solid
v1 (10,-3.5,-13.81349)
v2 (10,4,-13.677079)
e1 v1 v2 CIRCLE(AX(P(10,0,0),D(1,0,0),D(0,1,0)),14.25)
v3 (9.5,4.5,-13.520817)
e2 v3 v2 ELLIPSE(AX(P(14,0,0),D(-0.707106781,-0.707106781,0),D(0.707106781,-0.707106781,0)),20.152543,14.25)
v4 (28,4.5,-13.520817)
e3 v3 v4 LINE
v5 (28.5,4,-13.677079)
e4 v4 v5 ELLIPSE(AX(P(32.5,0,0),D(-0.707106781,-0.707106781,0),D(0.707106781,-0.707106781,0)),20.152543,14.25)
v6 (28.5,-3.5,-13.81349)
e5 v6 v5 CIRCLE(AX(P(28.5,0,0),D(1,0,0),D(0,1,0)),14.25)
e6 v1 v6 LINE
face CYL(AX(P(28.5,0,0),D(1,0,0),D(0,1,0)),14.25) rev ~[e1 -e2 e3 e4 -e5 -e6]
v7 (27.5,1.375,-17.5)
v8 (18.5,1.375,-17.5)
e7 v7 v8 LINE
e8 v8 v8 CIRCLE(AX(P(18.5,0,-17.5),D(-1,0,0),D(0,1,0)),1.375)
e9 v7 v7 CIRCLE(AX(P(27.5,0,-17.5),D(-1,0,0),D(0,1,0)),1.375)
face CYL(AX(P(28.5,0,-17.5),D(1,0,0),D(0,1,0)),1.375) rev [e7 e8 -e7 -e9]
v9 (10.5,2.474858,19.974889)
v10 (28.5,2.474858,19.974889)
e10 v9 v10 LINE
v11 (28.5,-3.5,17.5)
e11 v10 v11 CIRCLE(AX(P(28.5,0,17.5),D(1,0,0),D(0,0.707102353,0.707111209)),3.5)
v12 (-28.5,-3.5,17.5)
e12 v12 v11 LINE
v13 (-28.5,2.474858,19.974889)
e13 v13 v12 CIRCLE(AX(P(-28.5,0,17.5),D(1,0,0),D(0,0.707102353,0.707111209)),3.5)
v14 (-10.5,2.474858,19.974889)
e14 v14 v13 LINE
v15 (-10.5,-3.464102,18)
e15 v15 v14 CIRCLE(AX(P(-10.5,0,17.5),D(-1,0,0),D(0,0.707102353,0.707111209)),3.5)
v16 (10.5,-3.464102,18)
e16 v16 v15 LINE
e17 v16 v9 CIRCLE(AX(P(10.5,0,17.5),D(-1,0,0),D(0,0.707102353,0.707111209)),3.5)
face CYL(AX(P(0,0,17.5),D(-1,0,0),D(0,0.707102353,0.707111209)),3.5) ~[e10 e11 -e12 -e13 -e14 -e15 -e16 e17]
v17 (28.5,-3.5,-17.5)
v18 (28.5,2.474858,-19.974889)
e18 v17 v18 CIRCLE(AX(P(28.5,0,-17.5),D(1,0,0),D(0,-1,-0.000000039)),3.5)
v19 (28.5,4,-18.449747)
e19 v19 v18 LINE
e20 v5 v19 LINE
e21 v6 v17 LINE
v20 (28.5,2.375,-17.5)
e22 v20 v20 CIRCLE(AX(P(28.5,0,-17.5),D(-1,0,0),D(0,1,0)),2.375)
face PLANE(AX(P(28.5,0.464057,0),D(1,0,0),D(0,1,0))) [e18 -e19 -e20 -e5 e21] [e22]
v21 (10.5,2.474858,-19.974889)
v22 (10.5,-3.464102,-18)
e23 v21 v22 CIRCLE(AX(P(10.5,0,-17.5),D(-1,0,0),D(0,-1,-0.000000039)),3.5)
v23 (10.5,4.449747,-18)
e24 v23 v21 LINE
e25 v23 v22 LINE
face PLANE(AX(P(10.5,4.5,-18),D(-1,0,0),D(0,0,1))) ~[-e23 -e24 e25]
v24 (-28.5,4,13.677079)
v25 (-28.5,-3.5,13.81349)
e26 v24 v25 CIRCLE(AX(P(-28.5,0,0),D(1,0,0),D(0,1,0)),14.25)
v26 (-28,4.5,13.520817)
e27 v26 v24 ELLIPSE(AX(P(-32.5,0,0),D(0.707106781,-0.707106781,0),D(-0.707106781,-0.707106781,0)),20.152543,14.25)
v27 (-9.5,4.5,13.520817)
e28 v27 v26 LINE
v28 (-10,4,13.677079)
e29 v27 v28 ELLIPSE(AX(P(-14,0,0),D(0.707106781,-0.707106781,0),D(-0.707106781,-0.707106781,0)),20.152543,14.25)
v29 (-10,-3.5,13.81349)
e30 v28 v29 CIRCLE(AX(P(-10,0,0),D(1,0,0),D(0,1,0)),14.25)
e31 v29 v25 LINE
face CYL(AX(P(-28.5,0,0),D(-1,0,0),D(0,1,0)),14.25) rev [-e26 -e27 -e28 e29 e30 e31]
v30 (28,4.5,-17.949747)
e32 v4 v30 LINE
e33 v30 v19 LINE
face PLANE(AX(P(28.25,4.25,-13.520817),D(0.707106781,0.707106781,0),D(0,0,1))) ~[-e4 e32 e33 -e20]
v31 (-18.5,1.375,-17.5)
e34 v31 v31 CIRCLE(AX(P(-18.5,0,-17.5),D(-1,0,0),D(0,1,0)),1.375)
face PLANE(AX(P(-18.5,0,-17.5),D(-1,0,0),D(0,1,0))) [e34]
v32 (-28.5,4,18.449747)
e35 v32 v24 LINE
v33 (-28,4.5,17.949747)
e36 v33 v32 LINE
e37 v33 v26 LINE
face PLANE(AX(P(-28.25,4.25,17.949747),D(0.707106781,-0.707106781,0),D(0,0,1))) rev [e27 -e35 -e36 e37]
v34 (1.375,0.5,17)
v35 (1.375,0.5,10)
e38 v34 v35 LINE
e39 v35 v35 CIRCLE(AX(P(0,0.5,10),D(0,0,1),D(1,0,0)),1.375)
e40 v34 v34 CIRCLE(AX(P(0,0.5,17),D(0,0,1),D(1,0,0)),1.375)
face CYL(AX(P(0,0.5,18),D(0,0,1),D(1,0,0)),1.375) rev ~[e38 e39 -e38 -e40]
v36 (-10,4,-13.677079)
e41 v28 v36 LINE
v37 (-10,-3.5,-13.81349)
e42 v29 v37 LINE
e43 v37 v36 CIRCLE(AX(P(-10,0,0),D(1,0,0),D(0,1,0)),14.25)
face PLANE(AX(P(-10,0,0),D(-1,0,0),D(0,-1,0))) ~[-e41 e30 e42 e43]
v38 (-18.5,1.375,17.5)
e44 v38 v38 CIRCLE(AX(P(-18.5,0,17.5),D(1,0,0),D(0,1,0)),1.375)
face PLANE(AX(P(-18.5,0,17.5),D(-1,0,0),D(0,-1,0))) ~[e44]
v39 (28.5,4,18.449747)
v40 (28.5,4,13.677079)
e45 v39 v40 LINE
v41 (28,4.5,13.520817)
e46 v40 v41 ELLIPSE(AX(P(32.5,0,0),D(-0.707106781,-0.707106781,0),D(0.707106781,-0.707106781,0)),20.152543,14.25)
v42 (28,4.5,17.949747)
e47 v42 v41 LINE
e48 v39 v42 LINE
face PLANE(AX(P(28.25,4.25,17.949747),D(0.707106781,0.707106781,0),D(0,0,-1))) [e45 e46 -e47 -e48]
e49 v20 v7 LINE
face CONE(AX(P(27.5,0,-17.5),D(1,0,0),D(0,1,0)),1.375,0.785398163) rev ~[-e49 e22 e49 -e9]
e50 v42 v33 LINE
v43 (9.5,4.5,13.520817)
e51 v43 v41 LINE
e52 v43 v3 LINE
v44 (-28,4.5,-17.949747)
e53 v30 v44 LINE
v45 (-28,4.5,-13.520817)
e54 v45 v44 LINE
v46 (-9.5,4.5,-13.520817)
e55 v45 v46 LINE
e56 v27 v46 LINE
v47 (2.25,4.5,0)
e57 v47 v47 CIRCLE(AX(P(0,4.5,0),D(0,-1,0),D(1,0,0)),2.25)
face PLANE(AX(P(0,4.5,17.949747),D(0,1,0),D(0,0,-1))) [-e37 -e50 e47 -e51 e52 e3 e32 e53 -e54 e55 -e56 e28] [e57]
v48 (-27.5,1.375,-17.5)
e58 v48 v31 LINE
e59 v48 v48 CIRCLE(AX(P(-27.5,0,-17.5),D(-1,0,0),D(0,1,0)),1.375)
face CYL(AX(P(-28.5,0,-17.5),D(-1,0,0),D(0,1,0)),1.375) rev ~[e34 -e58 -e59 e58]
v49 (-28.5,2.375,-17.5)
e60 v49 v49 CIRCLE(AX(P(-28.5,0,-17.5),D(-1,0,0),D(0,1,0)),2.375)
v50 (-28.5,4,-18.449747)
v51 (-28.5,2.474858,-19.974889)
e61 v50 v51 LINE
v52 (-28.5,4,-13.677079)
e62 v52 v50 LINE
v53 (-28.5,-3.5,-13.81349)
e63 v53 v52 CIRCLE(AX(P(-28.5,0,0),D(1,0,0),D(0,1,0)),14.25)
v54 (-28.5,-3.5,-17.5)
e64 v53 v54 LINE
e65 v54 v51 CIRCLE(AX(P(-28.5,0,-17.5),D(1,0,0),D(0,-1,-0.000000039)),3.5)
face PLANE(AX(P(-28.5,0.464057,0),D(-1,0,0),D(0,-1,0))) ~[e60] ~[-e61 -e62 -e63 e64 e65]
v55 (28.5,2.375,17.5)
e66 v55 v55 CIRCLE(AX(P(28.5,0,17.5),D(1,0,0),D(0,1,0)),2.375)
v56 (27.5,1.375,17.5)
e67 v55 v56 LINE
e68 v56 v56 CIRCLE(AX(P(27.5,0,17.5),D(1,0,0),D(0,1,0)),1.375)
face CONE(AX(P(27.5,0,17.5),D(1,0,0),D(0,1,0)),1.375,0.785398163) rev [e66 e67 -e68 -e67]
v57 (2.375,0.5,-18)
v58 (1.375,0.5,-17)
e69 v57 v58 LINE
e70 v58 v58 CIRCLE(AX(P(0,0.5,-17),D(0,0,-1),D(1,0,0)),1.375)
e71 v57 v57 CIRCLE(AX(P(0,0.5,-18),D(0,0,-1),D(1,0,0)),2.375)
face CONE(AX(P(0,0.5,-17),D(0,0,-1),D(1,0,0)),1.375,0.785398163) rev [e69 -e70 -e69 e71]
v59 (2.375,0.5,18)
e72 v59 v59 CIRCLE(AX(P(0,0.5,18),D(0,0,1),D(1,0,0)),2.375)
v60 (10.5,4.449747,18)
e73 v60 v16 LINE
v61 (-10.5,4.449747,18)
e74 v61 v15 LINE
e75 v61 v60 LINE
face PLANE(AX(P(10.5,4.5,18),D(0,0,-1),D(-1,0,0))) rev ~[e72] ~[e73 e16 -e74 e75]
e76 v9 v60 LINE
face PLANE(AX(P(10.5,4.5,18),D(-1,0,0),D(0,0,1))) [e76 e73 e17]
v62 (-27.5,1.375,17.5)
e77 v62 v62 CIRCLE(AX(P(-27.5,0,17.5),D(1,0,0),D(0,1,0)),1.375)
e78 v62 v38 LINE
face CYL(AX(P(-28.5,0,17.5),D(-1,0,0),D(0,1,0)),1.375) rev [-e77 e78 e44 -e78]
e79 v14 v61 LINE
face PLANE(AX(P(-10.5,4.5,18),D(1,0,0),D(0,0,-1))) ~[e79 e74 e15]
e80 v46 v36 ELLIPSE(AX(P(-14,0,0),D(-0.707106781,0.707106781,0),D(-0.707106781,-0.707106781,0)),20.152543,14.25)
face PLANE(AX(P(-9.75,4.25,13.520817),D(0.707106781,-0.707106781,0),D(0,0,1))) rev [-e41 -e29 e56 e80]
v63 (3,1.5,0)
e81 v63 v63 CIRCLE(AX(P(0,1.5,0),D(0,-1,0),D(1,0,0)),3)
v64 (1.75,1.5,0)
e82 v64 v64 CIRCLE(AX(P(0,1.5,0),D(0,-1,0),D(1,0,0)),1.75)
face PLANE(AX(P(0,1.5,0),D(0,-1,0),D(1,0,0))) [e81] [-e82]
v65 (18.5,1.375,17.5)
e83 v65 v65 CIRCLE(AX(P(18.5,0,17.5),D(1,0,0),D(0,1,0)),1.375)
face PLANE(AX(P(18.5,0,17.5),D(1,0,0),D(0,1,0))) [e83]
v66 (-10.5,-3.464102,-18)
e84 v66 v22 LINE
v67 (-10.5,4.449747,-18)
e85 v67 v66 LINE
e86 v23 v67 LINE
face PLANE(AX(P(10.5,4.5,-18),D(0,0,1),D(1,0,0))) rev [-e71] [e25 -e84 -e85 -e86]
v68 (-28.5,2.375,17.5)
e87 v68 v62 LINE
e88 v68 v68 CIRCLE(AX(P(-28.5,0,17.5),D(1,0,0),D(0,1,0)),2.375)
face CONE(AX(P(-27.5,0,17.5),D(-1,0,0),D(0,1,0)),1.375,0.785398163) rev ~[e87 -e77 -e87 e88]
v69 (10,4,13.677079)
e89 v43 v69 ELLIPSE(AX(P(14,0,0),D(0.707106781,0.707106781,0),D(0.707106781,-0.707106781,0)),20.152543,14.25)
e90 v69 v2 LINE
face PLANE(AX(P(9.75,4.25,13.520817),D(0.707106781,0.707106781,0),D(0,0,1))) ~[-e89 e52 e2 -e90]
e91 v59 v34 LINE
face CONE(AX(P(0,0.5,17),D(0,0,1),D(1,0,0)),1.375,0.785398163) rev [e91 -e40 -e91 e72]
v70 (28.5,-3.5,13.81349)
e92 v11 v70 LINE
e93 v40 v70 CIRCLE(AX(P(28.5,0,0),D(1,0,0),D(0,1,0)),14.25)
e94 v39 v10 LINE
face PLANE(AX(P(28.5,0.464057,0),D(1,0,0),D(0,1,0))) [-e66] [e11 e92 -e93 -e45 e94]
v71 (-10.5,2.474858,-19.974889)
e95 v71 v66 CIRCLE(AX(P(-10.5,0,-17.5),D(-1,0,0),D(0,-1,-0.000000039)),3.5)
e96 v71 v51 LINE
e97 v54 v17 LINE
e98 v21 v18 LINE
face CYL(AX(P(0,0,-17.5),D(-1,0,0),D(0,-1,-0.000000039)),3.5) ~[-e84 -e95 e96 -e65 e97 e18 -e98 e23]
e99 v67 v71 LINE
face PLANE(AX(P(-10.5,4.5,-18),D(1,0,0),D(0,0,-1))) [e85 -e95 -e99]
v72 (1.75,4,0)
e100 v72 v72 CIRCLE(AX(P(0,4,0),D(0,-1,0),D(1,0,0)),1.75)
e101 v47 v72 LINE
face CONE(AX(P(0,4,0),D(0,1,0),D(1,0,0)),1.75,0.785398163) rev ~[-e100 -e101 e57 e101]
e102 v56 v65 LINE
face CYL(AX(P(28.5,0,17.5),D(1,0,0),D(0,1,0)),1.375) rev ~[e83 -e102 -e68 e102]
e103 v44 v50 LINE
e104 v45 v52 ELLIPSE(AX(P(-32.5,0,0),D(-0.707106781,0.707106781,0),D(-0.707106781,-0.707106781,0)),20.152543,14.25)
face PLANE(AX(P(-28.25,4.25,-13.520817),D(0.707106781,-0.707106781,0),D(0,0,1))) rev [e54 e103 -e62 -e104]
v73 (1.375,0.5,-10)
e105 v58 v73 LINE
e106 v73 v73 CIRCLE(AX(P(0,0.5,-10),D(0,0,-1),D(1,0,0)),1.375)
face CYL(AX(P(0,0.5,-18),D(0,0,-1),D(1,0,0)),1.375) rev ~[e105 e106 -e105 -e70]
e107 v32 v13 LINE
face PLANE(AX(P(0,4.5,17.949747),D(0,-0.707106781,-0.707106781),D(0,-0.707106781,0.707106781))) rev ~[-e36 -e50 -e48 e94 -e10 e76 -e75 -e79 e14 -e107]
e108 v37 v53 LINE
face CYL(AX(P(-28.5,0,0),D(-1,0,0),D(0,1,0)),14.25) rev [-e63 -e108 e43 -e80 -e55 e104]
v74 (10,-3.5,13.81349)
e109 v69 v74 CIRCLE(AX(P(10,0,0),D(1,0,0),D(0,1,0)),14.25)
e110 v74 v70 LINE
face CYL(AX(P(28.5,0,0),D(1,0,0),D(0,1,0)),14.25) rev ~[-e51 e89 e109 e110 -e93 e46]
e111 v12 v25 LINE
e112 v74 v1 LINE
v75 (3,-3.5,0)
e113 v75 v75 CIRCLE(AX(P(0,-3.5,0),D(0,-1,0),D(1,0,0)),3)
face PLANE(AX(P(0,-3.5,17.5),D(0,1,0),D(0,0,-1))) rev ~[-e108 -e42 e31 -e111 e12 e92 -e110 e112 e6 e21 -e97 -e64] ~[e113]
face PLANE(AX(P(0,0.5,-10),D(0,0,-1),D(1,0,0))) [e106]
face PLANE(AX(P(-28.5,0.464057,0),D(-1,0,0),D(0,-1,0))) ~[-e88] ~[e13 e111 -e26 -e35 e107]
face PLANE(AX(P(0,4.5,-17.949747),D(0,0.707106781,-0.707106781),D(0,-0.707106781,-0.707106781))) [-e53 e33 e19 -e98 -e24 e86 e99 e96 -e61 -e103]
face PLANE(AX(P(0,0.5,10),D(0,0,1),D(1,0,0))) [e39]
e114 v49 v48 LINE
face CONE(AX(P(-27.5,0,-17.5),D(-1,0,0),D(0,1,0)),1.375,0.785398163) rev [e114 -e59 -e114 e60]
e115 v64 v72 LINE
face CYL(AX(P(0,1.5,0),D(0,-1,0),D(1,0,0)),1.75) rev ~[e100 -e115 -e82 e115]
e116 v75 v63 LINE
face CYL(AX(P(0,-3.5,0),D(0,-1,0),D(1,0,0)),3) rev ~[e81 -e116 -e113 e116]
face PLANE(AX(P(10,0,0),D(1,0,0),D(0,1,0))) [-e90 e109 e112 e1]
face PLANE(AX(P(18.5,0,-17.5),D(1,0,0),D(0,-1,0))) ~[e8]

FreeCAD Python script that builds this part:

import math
import FreeCAD as App
import Part
import Sketcher
from FreeCAD import Vector
Q = App.Units.Quantity


def edges_at(feature, points):
    """Names of the edges that pass closest to the given points."""
    edges = feature.Shape.Edges
    near = lambda p: min(range(len(edges)), key=lambda i: edges[i].distToShape(Part.Vertex(*p))[0])
    return sorted({f"Edge{near(p) + 1}" for p in points})


def add_polygon(sketch, points):
    """Adds a closed chain of lines whose ends are joined by coincident constraints."""
    first, n = sketch.GeometryCount, len(points)
    for a, b in zip(points, points[1:] + points[:1]):
        sketch.addGeometry(Part.LineSegment(App.Vector(*a, 0), App.Vector(*b, 0)), False)
    for i in range(n):
        sketch.addConstraint(Sketcher.Constraint("Coincident", first + i, 2, first + (i + 1) % n, 1))

doc = App.newDocument("Part")
params = doc.addObject("Spreadsheet::Sheet", "Params")
for row, (alias, value) in enumerate([
    ("sketch1_radius", "3.5 mm"),
    ("sketch1_height", "35 mm"),
    ("pad1_length", "28.5 mm"),
    ("sketch2_diameter", "28.5 mm"),
    ("pocket1_length", "18.5 mm"),
    ("sketch3_diameter", "2.75 mm"),
    ("pocket2_length", "10 mm"),
    ("chamfer_size", "1 mm"),
    ("sketch4_height", "4 mm"),
    ("sketch4_width", "10.5 mm"),
    ("pocket3_length", "10 mm"),
    ("sketch5_diameter", "6 mm"),
    ("pocket4_length", "5 mm"),
    ("sketch6_diameter", "3.5 mm"),
    ("pocket5_length", "5 mm"),
    ("chamfer2_size", "0.5 mm"),
    ("sketch7_diameter", "2.75 mm"),
    ("pocket6_length", "8 mm"),
    ("sketch8_diameter", "2.75 mm"),
    ("pocket7_length", "8 mm"),
    ("chamfer3_size", "1 mm"),
], start=1):
    params.set(f"A{row}", alias)
    params.set(f"B{row}", "=" + value)
    params.setAlias(f"B{row}", alias)

body = doc.addObject("PartDesign::Body", "Body")

# Sketch on YZ plane
sketch1 = body.newObject("Sketcher::SketchObject", "Sketch")
sketch1.AttachmentSupport = (doc.getObject("YZ_Plane"), [""])
sketch1.MapMode = "FlatFace"
sketch1.addGeometry(Part.ArcOfCircle(Part.Circle(Vector(0, 17.5, 0), Vector(0, 0, 1), 3.5), math.radians(45), math.radians(180)), False)
sketch1.addGeometry(Part.LineSegment(Vector(-3.5, 17.5, 0), Vector(-3.5, -17.5, 0)), False)
sketch1.addGeometry(Part.ArcOfCircle(Part.Circle(Vector(0, -17.5, 0), Vector(0, 0, 1), 3.5), math.radians(-180), math.radians(-45)), False)
sketch1.addGeometry(Part.LineSegment(Vector(2.5, -20, 0), Vector(4.5, -17.9, 0)), False)
sketch1.addGeometry(Part.LineSegment(Vector(4.5, -17.9, 0), Vector(4.5, 17.9, 0)), False)
sketch1.addGeometry(Part.LineSegment(Vector(4.5, 17.9, 0), Vector(2.5, 20, 0)), False)
sketch1.addConstraint(Sketcher.Constraint("Tangent", 0, 2, 1, 1))
sketch1.addConstraint(Sketcher.Constraint("Tangent", 1, 2, 2, 1))
sketch1.addConstraint(Sketcher.Constraint("Coincident", 2, 2, 3, 1))
sketch1.addConstraint(Sketcher.Constraint("Coincident", 3, 2, 4, 1))
sketch1.addConstraint(Sketcher.Constraint("Coincident", 4, 2, 5, 1))
sketch1.addConstraint(Sketcher.Constraint("Coincident", 5, 2, 0, 1))
sketch1.addConstraint(Sketcher.Constraint("Vertical", 1))
sketch1.addConstraint(Sketcher.Constraint("Vertical", 4))
sketch1.addConstraint(Sketcher.Constraint("Equal", 0, 2))
sketch1.addConstraint(Sketcher.Constraint("Symmetric", 0, 3, 2, 3, -1, 1))
sketch1.addConstraint(Sketcher.Constraint("Perpendicular", 3, 5))
sketch1.addConstraint(Sketcher.Constraint("Vertical", 2, 2, 5, 2))
sketch1.addConstraint(Sketcher.Constraint("Equal", 3, 5))
sketch1.addConstraint(Sketcher.Constraint("Radius", 0, Q("3.5 mm")))
sketch1.addConstraint(Sketcher.Constraint("DistanceY", 1, 2, 1, 1, Q("35 mm")))
sketch1.addConstraint(Sketcher.Constraint("DistanceX", 1, 2, 3, 2, Q("8 mm")))
sketch1.addConstraint(Sketcher.Constraint("DistanceX", -1, 1, 2, 2, Q("2.474858 mm")))
sketch1.setExpression("Constraints[13]", "Params.sketch1_radius")
sketch1.setExpression("Constraints[14]", "Params.sketch1_height")
pad1 = body.newObject("PartDesign::Pad", "Pad")
pad1.Profile = sketch1
pad1.setExpression("Length", "Params.pad1_length")

# Sketch on YZ plane
sketch2 = body.newObject("Sketcher::SketchObject", "Sketch001")
sketch2.AttachmentSupport = (doc.getObject("YZ_Plane"), [""])
sketch2.MapMode = "FlatFace"
sketch2.AttachmentOffset = App.Placement(Vector(0, 0, 28.5), App.Rotation())
sketch2.addGeometry(Part.Circle(Vector(0, 0, 0), Vector(0, 0, 1), 14), False)
sketch2.addConstraint(Sketcher.Constraint("Coincident", 0, 3, -1, 1))
sketch2.addConstraint(Sketcher.Constraint("Diameter", 0, Q("28.5 mm")))
sketch2.setExpression("Constraints[1]", "Params.sketch2_diameter")
pocket1 = body.newObject("PartDesign::Pocket", "Pocket")
pocket1.Profile = sketch2
pocket1.setExpression("Length", "Params.pocket1_length")

# Sketch on YZ plane
sketch3 = body.newObject("Sketcher::SketchObject", "Sketch002")
sketch3.AttachmentSupport = (doc.getObject("YZ_Plane"), [""])
sketch3.MapMode = "FlatFace"
sketch3.AttachmentOffset = App.Placement(Vector(0, 0, 28.5), App.Rotation())
sketch3.addGeometry(Part.Circle(Vector(0, 17.5, 0), Vector(0, 0, 1), 1.4), False)
sketch3.addConstraint(Sketcher.Constraint("PointOnObject", 0, 3, -2))
sketch3.addConstraint(Sketcher.Constraint("Diameter", 0, Q("2.75 mm")))
sketch3.addConstraint(Sketcher.Constraint("DistanceY", -1, 1, 0, 3, Q("17.5 mm")))
sketch3.setExpression("Constraints[1]", "Params.sketch3_diameter")
pocket2 = body.newObject("PartDesign::Pocket", "Pocket001")
pocket2.Profile = sketch3
pocket2.setExpression("Length", "Params.pocket2_length")
doc.recompute()

mirrored = body.newObject("PartDesign::Mirrored", "Mirrored")
mirrored.Originals = [pocket2]
mirrored.MirrorPlane = (doc.getObject("XY_Plane"), [""])
body.Tip = mirrored
doc.recompute()

chamfer = body.newObject("PartDesign::Chamfer", "Chamfer")
chamfer.Base = (mirrored, edges_at(mirrored, [(28.5, -1.375, 17.5), (28.5, -1.375, -17.5)]))
chamfer.setExpression("Size", "Params.chamfer_size")

# Sketch on XZ plane
sketch4 = body.newObject("Sketcher::SketchObject", "Sketch003")
sketch4.AttachmentSupport = (doc.getObject("XZ_Plane"), [""])
sketch4.MapMode = "FlatFace"
sketch4.AttachmentOffset = App.Placement(Vector(0, 0, -4.5), App.Rotation())
add_polygon(sketch4, [(10.5, 22), (10.5, 18), (0, 18), (0, 22)])  # lines 0-3
sketch4.addConstraint(Sketcher.Constraint("Vertical", 0))
sketch4.addConstraint(Sketcher.Constraint("Horizontal", 1))
sketch4.addConstraint(Sketcher.Constraint("Vertical", 2))
sketch4.addConstraint(Sketcher.Constraint("Horizontal", 3))
sketch4.addConstraint(Sketcher.Constraint("PointOnObject", 1, 2, -2))
sketch4.addConstraint(Sketcher.Constraint("DistanceY", 0, 2, 0, 1, Q("4 mm")))
sketch4.addConstraint(Sketcher.Constraint("DistanceX", 1, 2, 1, 1, Q("10.5 mm")))
sketch4.addConstraint(Sketcher.Constraint("DistanceY", -1, 1, 0, 2, Q("18 mm")))
sketch4.setExpression("Constraints[9]", "Params.sketch4_height")
sketch4.setExpression("Constraints[10]", "Params.sketch4_width")
pocket3 = body.newObject("PartDesign::Pocket", "Pocket002")
pocket3.Profile = sketch4
pocket3.setExpression("Length", "Params.pocket3_length")
pocket3.Reversed = True
doc.recompute()

mirrored2 = body.newObject("PartDesign::Mirrored", "Mirrored001")
mirrored2.Originals = [pocket3]
mirrored2.MirrorPlane = (doc.getObject("XY_Plane"), [""])
body.Tip = mirrored2
body2 = doc.addObject("PartDesign::Body", "Body001")
doc.recompute()

mirroring = doc.addObject("Part::Mirroring", "Mirroring")
mirroring.Source = body
mirroring.Base = Vector(0, 0, 0)
mirroring.Normal = Vector(1, 0, 0)
body2.BaseFeature = mirroring
doc.recompute()

boolean = body2.newObject("PartDesign::Boolean", "Boolean")
boolean.Type = "Fuse"
boolean.addObjects([body])

# Sketch on XZ plane
sketch5 = body2.newObject("Sketcher::SketchObject", "Sketch004")
sketch5.AttachmentSupport = (doc.getObject("XZ_Plane001"), [""])
sketch5.MapMode = "FlatFace"
sketch5.AttachmentOffset = App.Placement(Vector(0, 0, 3.5), App.Rotation())
sketch5.addGeometry(Part.Circle(Vector(0, 0, 0), Vector(0, 0, 1), 3), False)
sketch5.addConstraint(Sketcher.Constraint("Coincident", 0, 3, -1, 1))
sketch5.addConstraint(Sketcher.Constraint("Diameter", 0, Q("6 mm")))
sketch5.setExpression("Constraints[1]", "Params.sketch5_diameter")
pocket4 = body2.newObject("PartDesign::Pocket", "Pocket003")
pocket4.Profile = sketch5
pocket4.setExpression("Length", "Params.pocket4_length")

# Sketch on XZ plane
sketch6 = body2.newObject("Sketcher::SketchObject", "Sketch005")
sketch6.AttachmentSupport = (doc.getObject("XZ_Plane001"), [""])
sketch6.MapMode = "FlatFace"
sketch6.AttachmentOffset = App.Placement(Vector(0, 0, -1.5), App.Rotation())
sketch6.addGeometry(Part.Circle(Vector(0, 0, 0), Vector(0, 0, 1), 1.8), False)
sketch6.addConstraint(Sketcher.Constraint("Coincident", 0, 3, -1, 1))
sketch6.addConstraint(Sketcher.Constraint("Diameter", 0, Q("3.5 mm")))
sketch6.setExpression("Constraints[1]", "Params.sketch6_diameter")
pocket5 = body2.newObject("PartDesign::Pocket", "Pocket004")
pocket5.Profile = sketch6
pocket5.setExpression("Length", "Params.pocket5_length")
doc.recompute()

chamfer2 = body2.newObject("PartDesign::Chamfer", "Chamfer001")
chamfer2.Base = (pocket5, edges_at(pocket5, [
    (10, 4.5, 0),
    (-1.75, 4.5, 0),
    (-10, 4.5, 0),
    (-28.5, 4.5, -15.735),
    (-28.5, 4.5, 15.735),
    (28.5, 4.5, -15.735),
    (28.5, 4.5, 15.735),
]))
chamfer2.setExpression("Size", "Params.chamfer2_size")

# Sketch on XY plane
sketch7 = body2.newObject("Sketcher::SketchObject", "Sketch006")
sketch7.AttachmentSupport = (doc.getObject("XY_Plane001"), [""])
sketch7.MapMode = "FlatFace"
sketch7.AttachmentOffset = App.Placement(Vector(0, 0, 18), App.Rotation())
sketch7.addGeometry(Part.Circle(Vector(0, 0.5, 0), Vector(0, 0, 1), 1.4), False)
sketch7.addConstraint(Sketcher.Constraint("PointOnObject", 0, 3, -2))
sketch7.addConstraint(Sketcher.Constraint("Diameter", 0, Q("2.75 mm")))
sketch7.addConstraint(Sketcher.Constraint("DistanceY", -1, 1, 0, 3, Q("0.5 mm")))
sketch7.setExpression("Constraints[1]", "Params.sketch7_diameter")
pocket6 = body2.newObject("PartDesign::Pocket", "Pocket005")
pocket6.Profile = sketch7
pocket6.setExpression("Length", "Params.pocket6_length")

# Sketch on XY plane
sketch8 = body2.newObject("Sketcher::SketchObject", "Sketch007")
sketch8.AttachmentSupport = (doc.getObject("XY_Plane001"), [""])
sketch8.MapMode = "FlatFace"
sketch8.AttachmentOffset = App.Placement(Vector(0, 0, -18), App.Rotation())
sketch8.addGeometry(Part.Circle(Vector(0, 0.5, 0), Vector(0, 0, 1), 1.4), False)
sketch8.addConstraint(Sketcher.Constraint("PointOnObject", 0, 3, -2))
sketch8.addConstraint(Sketcher.Constraint("Diameter", 0, Q("2.75 mm")))
sketch8.addConstraint(Sketcher.Constraint("DistanceY", -1, 1, 0, 3, Q("0.5 mm")))
sketch8.setExpression("Constraints[1]", "Params.sketch8_diameter")
pocket7 = body2.newObject("PartDesign::Pocket", "Pocket006")
pocket7.Profile = sketch8
pocket7.setExpression("Length", "Params.pocket7_length")
pocket7.Reversed = True
doc.recompute()

chamfer3 = body2.newObject("PartDesign::Chamfer", "Chamfer002")
chamfer3.Base = (pocket7, edges_at(pocket7, [(-1.375, 0.5, -18), (-1.375, 0.5, 18)]))
chamfer3.setExpression("Size", "Params.chamfer3_size")
mirroring.Visibility = False

doc.recompute()
